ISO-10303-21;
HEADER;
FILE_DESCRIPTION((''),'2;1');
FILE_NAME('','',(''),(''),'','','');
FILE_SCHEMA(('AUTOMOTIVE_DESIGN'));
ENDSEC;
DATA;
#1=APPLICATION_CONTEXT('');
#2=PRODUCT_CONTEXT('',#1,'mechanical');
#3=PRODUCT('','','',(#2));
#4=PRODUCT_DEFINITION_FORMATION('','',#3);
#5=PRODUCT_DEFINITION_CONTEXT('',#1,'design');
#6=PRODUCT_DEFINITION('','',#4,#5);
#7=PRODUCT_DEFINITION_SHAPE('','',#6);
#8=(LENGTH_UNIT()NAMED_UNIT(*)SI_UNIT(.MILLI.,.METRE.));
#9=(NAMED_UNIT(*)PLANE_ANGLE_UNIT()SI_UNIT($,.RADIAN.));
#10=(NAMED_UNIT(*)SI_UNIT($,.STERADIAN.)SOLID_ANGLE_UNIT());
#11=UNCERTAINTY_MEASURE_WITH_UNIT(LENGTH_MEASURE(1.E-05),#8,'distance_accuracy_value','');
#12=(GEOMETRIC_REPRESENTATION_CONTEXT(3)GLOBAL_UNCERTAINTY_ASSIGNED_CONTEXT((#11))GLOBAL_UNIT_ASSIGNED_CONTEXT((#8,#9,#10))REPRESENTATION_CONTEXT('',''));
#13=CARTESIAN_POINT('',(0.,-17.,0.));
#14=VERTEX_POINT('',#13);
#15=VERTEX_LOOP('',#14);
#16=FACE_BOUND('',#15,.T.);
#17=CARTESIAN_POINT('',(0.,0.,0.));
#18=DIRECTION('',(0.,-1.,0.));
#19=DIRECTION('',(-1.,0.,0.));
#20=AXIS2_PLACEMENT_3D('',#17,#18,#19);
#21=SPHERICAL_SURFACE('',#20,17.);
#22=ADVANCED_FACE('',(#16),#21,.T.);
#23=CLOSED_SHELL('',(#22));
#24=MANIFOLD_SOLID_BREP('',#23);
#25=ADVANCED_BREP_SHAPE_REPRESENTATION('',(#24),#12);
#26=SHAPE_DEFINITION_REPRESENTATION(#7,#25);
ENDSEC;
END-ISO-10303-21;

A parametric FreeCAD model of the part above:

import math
import FreeCAD as App
import Part
import Sketcher
Q = App.Units.Quantity

doc = App.newDocument("Part")
body = doc.addObject("PartDesign::Body", "Body")

# Sketch on XY plane
sketch1 = doc.addObject("Sketcher::SketchObject", "Sketch")
body.addObject(sketch1)
sketch1.AttachmentSupport = (doc.XY_Plane, [""])
sketch1.MapMode = "FlatFace"
sketch1.addGeometry(Part.LineSegment(App.Vector(0, -17, 0), App.Vector(0, 17, 0)), False)
sketch1.addGeometry(Part.ArcOfCircle(Part.Circle(App.Vector(0, 0, 0), App.Vector(0, 0, 1), 17), math.radians(90), math.radians(270)), False)
sketch1.addConstraint(Sketcher.Constraint("Coincident", 0, 1, 1, 2))
sketch1.addConstraint(Sketcher.Constraint("Coincident", 1, 1, 0, 2))
sketch1.addConstraint(Sketcher.Constraint("Vertical", 0))
sketch1.addConstraint(Sketcher.Constraint("Coincident", 1, 3, -1, 1))
sketch1.addConstraint(Sketcher.Constraint("PointOnObject", 0, 1, -2))
sketch1.addConstraint(Sketcher.Constraint("Radius", 1, Q("17 mm")))
revolution = doc.addObject("PartDesign::Revolution", "Revolution")
body.addObject(revolution)
revolution.Profile = sketch1
revolution.ReferenceAxis = (sketch1, ["V_Axis"])
revolution.Angle = 360

doc.recompute()
